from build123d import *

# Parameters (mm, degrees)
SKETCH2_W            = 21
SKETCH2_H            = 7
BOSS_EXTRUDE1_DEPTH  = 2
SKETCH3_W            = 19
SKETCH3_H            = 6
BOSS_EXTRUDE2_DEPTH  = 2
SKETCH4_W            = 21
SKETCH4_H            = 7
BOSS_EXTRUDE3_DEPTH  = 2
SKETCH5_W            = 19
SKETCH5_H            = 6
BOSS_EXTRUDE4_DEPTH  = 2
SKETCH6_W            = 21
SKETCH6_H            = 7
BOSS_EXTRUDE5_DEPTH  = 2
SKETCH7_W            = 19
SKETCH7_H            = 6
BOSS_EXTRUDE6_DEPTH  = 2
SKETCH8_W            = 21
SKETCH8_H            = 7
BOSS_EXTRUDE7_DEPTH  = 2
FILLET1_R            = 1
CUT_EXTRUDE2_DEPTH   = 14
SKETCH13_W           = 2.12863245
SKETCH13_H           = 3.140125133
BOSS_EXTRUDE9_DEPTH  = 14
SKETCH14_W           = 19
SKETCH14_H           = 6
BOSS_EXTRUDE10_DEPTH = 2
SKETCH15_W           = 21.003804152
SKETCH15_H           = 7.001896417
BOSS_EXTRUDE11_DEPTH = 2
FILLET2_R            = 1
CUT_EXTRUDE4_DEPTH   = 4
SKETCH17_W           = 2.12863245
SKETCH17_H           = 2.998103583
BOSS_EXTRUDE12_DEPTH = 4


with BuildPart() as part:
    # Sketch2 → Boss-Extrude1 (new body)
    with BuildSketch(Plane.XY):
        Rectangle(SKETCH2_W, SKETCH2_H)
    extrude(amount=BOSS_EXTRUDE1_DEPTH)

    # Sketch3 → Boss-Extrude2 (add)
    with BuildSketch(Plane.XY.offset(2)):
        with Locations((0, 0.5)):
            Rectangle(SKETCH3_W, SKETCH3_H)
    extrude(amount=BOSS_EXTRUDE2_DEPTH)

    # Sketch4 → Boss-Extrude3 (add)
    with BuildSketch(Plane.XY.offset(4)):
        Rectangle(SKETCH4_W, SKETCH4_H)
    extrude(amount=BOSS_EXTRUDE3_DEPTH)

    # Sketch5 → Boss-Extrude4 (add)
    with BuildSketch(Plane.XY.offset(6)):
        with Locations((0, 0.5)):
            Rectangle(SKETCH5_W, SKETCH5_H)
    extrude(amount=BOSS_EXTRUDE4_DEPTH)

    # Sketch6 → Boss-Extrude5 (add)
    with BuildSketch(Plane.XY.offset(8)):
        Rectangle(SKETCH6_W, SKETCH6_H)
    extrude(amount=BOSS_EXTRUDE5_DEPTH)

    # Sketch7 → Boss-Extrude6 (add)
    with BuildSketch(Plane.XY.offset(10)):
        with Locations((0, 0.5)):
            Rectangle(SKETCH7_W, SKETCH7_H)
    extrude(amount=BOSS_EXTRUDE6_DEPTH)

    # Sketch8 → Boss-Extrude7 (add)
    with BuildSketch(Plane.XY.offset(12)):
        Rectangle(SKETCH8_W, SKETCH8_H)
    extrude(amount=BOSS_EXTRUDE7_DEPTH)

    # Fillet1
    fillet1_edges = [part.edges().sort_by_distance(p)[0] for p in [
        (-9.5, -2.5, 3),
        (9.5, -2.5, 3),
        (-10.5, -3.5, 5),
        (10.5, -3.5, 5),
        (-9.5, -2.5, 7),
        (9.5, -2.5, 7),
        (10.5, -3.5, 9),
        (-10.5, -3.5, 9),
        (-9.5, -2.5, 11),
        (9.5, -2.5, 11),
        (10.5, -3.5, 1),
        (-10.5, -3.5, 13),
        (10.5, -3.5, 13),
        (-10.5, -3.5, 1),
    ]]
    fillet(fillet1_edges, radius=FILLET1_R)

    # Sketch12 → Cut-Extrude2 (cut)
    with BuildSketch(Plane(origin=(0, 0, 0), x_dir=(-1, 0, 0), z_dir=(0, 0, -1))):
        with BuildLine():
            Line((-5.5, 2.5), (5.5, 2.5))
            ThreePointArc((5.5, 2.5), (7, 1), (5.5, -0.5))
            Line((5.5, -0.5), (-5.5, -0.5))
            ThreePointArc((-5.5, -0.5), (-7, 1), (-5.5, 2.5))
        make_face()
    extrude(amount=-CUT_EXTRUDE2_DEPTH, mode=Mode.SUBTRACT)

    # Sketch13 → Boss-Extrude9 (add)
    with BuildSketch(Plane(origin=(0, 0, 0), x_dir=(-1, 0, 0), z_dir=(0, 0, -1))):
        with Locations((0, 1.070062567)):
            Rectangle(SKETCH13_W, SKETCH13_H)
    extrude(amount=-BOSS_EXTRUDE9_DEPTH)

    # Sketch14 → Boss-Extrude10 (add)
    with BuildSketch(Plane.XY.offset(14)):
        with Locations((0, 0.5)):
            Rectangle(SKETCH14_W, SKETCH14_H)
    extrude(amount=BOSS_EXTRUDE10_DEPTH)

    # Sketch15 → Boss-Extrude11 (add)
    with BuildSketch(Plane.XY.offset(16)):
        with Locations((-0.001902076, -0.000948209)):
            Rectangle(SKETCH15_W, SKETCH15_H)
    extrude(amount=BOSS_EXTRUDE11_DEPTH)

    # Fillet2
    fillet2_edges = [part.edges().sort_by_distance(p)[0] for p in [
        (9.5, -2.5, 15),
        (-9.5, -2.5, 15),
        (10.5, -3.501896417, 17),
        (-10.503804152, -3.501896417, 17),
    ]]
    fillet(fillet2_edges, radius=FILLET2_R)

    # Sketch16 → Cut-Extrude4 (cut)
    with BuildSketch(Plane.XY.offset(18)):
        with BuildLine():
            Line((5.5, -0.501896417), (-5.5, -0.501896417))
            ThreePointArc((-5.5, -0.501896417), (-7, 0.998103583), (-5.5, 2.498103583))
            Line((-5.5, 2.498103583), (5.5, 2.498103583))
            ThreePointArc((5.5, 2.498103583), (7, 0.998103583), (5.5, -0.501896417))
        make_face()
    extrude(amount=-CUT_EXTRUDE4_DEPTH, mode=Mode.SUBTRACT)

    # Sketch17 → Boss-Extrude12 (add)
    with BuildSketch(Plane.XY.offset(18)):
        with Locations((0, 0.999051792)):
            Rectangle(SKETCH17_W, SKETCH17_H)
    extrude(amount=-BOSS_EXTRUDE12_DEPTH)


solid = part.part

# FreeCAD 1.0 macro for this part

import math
import FreeCAD as App
import Part
import Sketcher
from FreeCAD import Vector
Q = App.Units.Quantity


def edges_at(feature, points):
    """Names of the edges that pass closest to the given points."""
    edges = feature.Shape.Edges
    near = lambda p: min(range(len(edges)), key=lambda i: edges[i].distToShape(Part.Vertex(*p))[0])
    return sorted({f"Edge{near(p) + 1}" for p in points})


def add_polygon(sketch, points):
    """Adds a closed chain of lines whose ends are joined by coincident constraints."""
    first, n = sketch.GeometryCount, len(points)
    for a, b in zip(points, points[1:] + points[:1]):
        sketch.addGeometry(Part.LineSegment(App.Vector(*a, 0), App.Vector(*b, 0)), False)
    for i in range(n):
        sketch.addConstraint(Sketcher.Constraint("Coincident", first + i, 2, first + (i + 1) % n, 1))

doc = App.newDocument("Part")
body = doc.addObject("PartDesign::Body", "Body")

sketch1 = doc.addObject("Sketcher::SketchObject", "Sketch")
body.addObject(sketch1)
sketch1.AttachmentSupport = (doc.XY_Plane, [""])
sketch1.MapMode = "FlatFace"
add_polygon(sketch1, [(-10.5, 3.5), (-10.5, -3.5), (10.5, -3.5), (10.5, 3.5)])
sketch1.addConstraint([
    Sketcher.Constraint("Vertical", 0),
    Sketcher.Constraint("Horizontal", 1),
    Sketcher.Constraint("Vertical", 2),
    Sketcher.Constraint("Horizontal", 3),
    Sketcher.Constraint("Symmetric", 0, 2, 2, 2, -1, 1),
    Sketcher.Constraint("DistanceX", 1, 1, 1, 2, Q("21 mm")),
    Sketcher.Constraint("DistanceY", 0, 2, 0, 1, Q("7 mm")),
])
pad1 = doc.addObject("PartDesign::Pad", "Pad")
body.addObject(pad1)
pad1.Profile = sketch1
pad1.Length = 2

sketch2 = doc.addObject("Sketcher::SketchObject", "Sketch001")
body.addObject(sketch2)
sketch2.AttachmentSupport = (doc.XY_Plane, [""])
sketch2.MapMode = "FlatFace"
sketch2.AttachmentOffset = App.Placement(Vector(0, 0, 2), App.Rotation())
add_polygon(sketch2, [(-9.5, 3.5), (-9.5, -2.5), (9.5, -2.5), (9.5, 3.5)])
sketch2.addConstraint([
    Sketcher.Constraint("Vertical", 0),
    Sketcher.Constraint("Horizontal", 1),
    Sketcher.Constraint("Vertical", 2),
    Sketcher.Constraint("Horizontal", 3),
    Sketcher.Constraint("DistanceX", 1, 1, 1, 2, Q("19 mm")),
    Sketcher.Constraint("DistanceY", 0, 2, 0, 1, Q("6 mm")),
    Sketcher.Constraint("DistanceX", 0, 2, -1, 1, Q("9.5 mm")),
    Sketcher.Constraint("DistanceY", 0, 2, -1, 1, Q("2.5 mm")),
])
pad2 = doc.addObject("PartDesign::Pad", "Pad001")
body.addObject(pad2)
pad2.Profile = sketch2
pad2.Length = 2

sketch3 = doc.addObject("Sketcher::SketchObject", "Sketch002")
body.addObject(sketch3)
sketch3.AttachmentSupport = (doc.XY_Plane, [""])
sketch3.MapMode = "FlatFace"
sketch3.AttachmentOffset = App.Placement(Vector(0, 0, 4), App.Rotation())
add_polygon(sketch3, [(-10.5, 3.5), (-10.5, -3.5), (10.5, -3.5), (10.5, 3.5)])
sketch3.addConstraint([
    Sketcher.Constraint("Vertical", 0),
    Sketcher.Constraint("Horizontal", 1),
    Sketcher.Constraint("Vertical", 2),
    Sketcher.Constraint("Horizontal", 3),
    Sketcher.Constraint("Symmetric", 0, 2, 2, 2, -1, 1),
    Sketcher.Constraint("DistanceX", 1, 1, 1, 2, Q("21 mm")),
    Sketcher.Constraint("DistanceY", 0, 2, 0, 1, Q("7 mm")),
])
pad3 = doc.addObject("PartDesign::Pad", "Pad002")
body.addObject(pad3)
pad3.Profile = sketch3
pad3.Length = 2

sketch4 = doc.addObject("Sketcher::SketchObject", "Sketch003")
body.addObject(sketch4)
sketch4.AttachmentSupport = (doc.XY_Plane, [""])
sketch4.MapMode = "FlatFace"
sketch4.AttachmentOffset = App.Placement(Vector(0, 0, 6), App.Rotation())
add_polygon(sketch4, [(-9.5, 3.5), (-9.5, -2.5), (9.5, -2.5), (9.5, 3.5)])
sketch4.addConstraint([
    Sketcher.Constraint("Vertical", 0),
    Sketcher.Constraint("Horizontal", 1),
    Sketcher.Constraint("Vertical", 2),
    Sketcher.Constraint("Horizontal", 3),
    Sketcher.Constraint("DistanceX", 1, 1, 1, 2, Q("19 mm")),
    Sketcher.Constraint("DistanceY", 0, 2, 0, 1, Q("6 mm")),
    Sketcher.Constraint("DistanceX", 0, 2, -1, 1, Q("9.5 mm")),
    Sketcher.Constraint("DistanceY", 0, 2, -1, 1, Q("2.5 mm")),
])
pad4 = doc.addObject("PartDesign::Pad", "Pad003")
body.addObject(pad4)
pad4.Profile = sketch4
pad4.Length = 2

sketch5 = doc.addObject("Sketcher::SketchObject", "Sketch004")
body.addObject(sketch5)
sketch5.AttachmentSupport = (doc.XY_Plane, [""])
sketch5.MapMode = "FlatFace"
sketch5.AttachmentOffset = App.Placement(Vector(0, 0, 8), App.Rotation())
add_polygon(sketch5, [(-10.5, 3.5), (-10.5, -3.5), (10.5, -3.5), (10.5, 3.5)])
sketch5.addConstraint([
    Sketcher.Constraint("Vertical", 0),
    Sketcher.Constraint("Horizontal", 1),
    Sketcher.Constraint("Vertical", 2),
    Sketcher.Constraint("Horizontal", 3),
    Sketcher.Constraint("Symmetric", 0, 2, 2, 2, -1, 1),
    Sketcher.Constraint("DistanceX", 1, 1, 1, 2, Q("21 mm")),
    Sketcher.Constraint("DistanceY", 0, 2, 0, 1, Q("7 mm")),
])
pad5 = doc.addObject("PartDesign::Pad", "Pad004")
body.addObject(pad5)
pad5.Profile = sketch5
pad5.Length = 2

sketch6 = doc.addObject("Sketcher::SketchObject", "Sketch005")
body.addObject(sketch6)
sketch6.AttachmentSupport = (doc.XY_Plane, [""])
sketch6.MapMode = "FlatFace"
sketch6.AttachmentOffset = App.Placement(Vector(0, 0, 10), App.Rotation())
add_polygon(sketch6, [(-9.5, 3.5), (-9.5, -2.5), (9.5, -2.5), (9.5, 3.5)])
sketch6.addConstraint([
    Sketcher.Constraint("Vertical", 0),
    Sketcher.Constraint("Horizontal", 1),
    Sketcher.Constraint("Vertical", 2),
    Sketcher.Constraint("Horizontal", 3),
    Sketcher.Constraint("DistanceX", 1, 1, 1, 2, Q("19 mm")),
    Sketcher.Constraint("DistanceY", 0, 2, 0, 1, Q("6 mm")),
    Sketcher.Constraint("DistanceX", 0, 2, -1, 1, Q("9.5 mm")),
    Sketcher.Constraint("DistanceY", 0, 2, -1, 1, Q("2.5 mm")),
])
pad6 = doc.addObject("PartDesign::Pad", "Pad005")
body.addObject(pad6)
pad6.Profile = sketch6
pad6.Length = 2

sketch7 = doc.addObject("Sketcher::SketchObject", "Sketch006")
body.addObject(sketch7)
sketch7.AttachmentSupport = (doc.XY_Plane, [""])
sketch7.MapMode = "FlatFace"
sketch7.AttachmentOffset = App.Placement(Vector(0, 0, 12), App.Rotation())
add_polygon(sketch7, [(-10.5, 3.5), (-10.5, -3.5), (10.5, -3.5), (10.5, 3.5)])
sketch7.addConstraint([
    Sketcher.Constraint("Vertical", 0),
    Sketcher.Constraint("Horizontal", 1),
    Sketcher.Constraint("Vertical", 2),
    Sketcher.Constraint("Horizontal", 3),
    Sketcher.Constraint("Symmetric", 0, 2, 2, 2, -1, 1),
    Sketcher.Constraint("DistanceX", 1, 1, 1, 2, Q("21 mm")),
    Sketcher.Constraint("DistanceY", 0, 2, 0, 1, Q("7 mm")),
])
pad7 = doc.addObject("PartDesign::Pad", "Pad006")
body.addObject(pad7)
pad7.Profile = sketch7
pad7.Length = 2
doc.recompute()

fillet = doc.addObject("PartDesign::Fillet", "Fillet")
body.addObject(fillet)
fillet.Base = (pad7, edges_at(pad7, [
    (-9.5, -2.5, 3),
    (9.5, -2.5, 3),
    (-10.5, -3.5, 5),
    (10.5, -3.5, 5),
    (-9.5, -2.5, 7),
    (9.5, -2.5, 7),
    (10.5, -3.5, 9),
    (-10.5, -3.5, 9),
    (-9.5, -2.5, 11),
    (9.5, -2.5, 11),
    (10.5, -3.5, 1),
    (-10.5, -3.5, 13),
    (10.5, -3.5, 13),
    (-10.5, -3.5, 1),
]))
fillet.Radius = 1

sketch8 = doc.addObject("Sketcher::SketchObject", "Sketch007")
body.addObject(sketch8)
sketch8.AttachmentSupport = (doc.XY_Plane, [""])
sketch8.MapMode = "FlatFace"
sketch8.addGeometry([
    Part.LineSegment(Vector(-5.5, 2.5, 0), Vector(5.5, 2.5, 0)),
    Part.ArcOfCircle(Part.Circle(Vector(5.5, 1, 0), Vector(0, 0, 1), 1.5), math.radians(-90), math.radians(90)),
    Part.LineSegment(Vector(5.5, -0.5, 0), Vector(-5.5, -0.5, 0)),
    Part.ArcOfCircle(Part.Circle(Vector(-5.5, 1, 0), Vector(0, 0, 1), 1.5), math.radians(90), math.radians(270)),
], False)
sketch8.addConstraint([
    Sketcher.Constraint("Tangent", 0, 2, 1, 2),
    Sketcher.Constraint("Tangent", 1, 1, 2, 1),
    Sketcher.Constraint("Tangent", 2, 2, 3, 2),
    Sketcher.Constraint("Tangent", 3, 1, 0, 1),
    Sketcher.Constraint("Horizontal", 0),
    Sketcher.Constraint("Horizontal", 2),
    Sketcher.Constraint("Radius", 1, Q("1.5 mm")),
    Sketcher.Constraint("DistanceX", 0, 1, 0, 2, Q("11 mm")),
    Sketcher.Constraint("DistanceY", -1, 1, 1, 3, Q("1 mm")),
    Sketcher.Constraint("DistanceX", -1, 1, 1, 3, Q("5.5 mm")),
])
pocket1 = doc.addObject("PartDesign::Pocket", "Pocket")
body.addObject(pocket1)
pocket1.Profile = sketch8
pocket1.Length = 14
pocket1.Reversed = True

sketch9 = doc.addObject("Sketcher::SketchObject", "Sketch008")
body.addObject(sketch9)
sketch9.AttachmentSupport = (doc.XY_Plane, [""])
sketch9.MapMode = "FlatFace"
add_polygon(sketch9, [(1.064316, 2.640125), (1.064316, -0.5), (-1.064316, -0.5), (-1.064316, 2.640125)])
sketch9.addConstraint([
    Sketcher.Constraint("Vertical", 0),
    Sketcher.Constraint("Horizontal", 1),
    Sketcher.Constraint("Vertical", 2),
    Sketcher.Constraint("Horizontal", 3),
    Sketcher.Constraint("DistanceY", 0, 2, -1, 1, Q("0.5 mm")),
    Sketcher.Constraint("DistanceX", 1, 2, 1, 1, Q("2.128632 mm")),
    Sketcher.Constraint("DistanceY", 0, 2, 0, 1, Q("3.140125 mm")),
    Sketcher.Constraint("DistanceX", -1, 1, 0, 2, Q("1.064316 mm")),
])
pad8 = doc.addObject("PartDesign::Pad", "Pad007")
body.addObject(pad8)
pad8.Profile = sketch9
pad8.Length = 14

sketch10 = doc.addObject("Sketcher::SketchObject", "Sketch009")
body.addObject(sketch10)
sketch10.AttachmentSupport = (doc.XY_Plane, [""])
sketch10.MapMode = "FlatFace"
sketch10.AttachmentOffset = App.Placement(Vector(0, 0, 14), App.Rotation())
add_polygon(sketch10, [(-9.5, 3.5), (-9.5, -2.5), (9.5, -2.5), (9.5, 3.5)])
sketch10.addConstraint([
    Sketcher.Constraint("Vertical", 0),
    Sketcher.Constraint("Horizontal", 1),
    Sketcher.Constraint("Vertical", 2),
    Sketcher.Constraint("Horizontal", 3),
    Sketcher.Constraint("DistanceX", 1, 1, 1, 2, Q("19 mm")),
    Sketcher.Constraint("DistanceY", 0, 2, 0, 1, Q("6 mm")),
    Sketcher.Constraint("DistanceX", 0, 2, -1, 1, Q("9.5 mm")),
    Sketcher.Constraint("DistanceY", 0, 2, -1, 1, Q("2.5 mm")),
])
pad9 = doc.addObject("PartDesign::Pad", "Pad008")
body.addObject(pad9)
pad9.Profile = sketch10
pad9.Length = 2

sketch11 = doc.addObject("Sketcher::SketchObject", "Sketch010")
body.addObject(sketch11)
sketch11.AttachmentSupport = (doc.XY_Plane, [""])
sketch11.MapMode = "FlatFace"
sketch11.AttachmentOffset = App.Placement(Vector(0, 0, 16), App.Rotation())
add_polygon(sketch11, [(-10.503804, 3.5), (-10.503804, -3.501896), (10.5, -3.501896), (10.5, 3.5)])
sketch11.addConstraint([
    Sketcher.Constraint("Vertical", 0),
    Sketcher.Constraint("Horizontal", 1),
    Sketcher.Constraint("Vertical", 2),
    Sketcher.Constraint("Horizontal", 3),
    Sketcher.Constraint("DistanceX", -1, 1, 1, 2, Q("10.5 mm")),
    Sketcher.Constraint("DistanceY", -1, 1, 2, 2, Q("3.5 mm")),
    Sketcher.Constraint("DistanceX", 1, 1, 1, 2, Q("21.003804 mm")),
    Sketcher.Constraint("DistanceY", 0, 2, 0, 1, Q("7.001896 mm")),
])
pad10 = doc.addObject("PartDesign::Pad", "Pad009")
body.addObject(pad10)
pad10.Profile = sketch11
pad10.Length = 2
doc.recompute()

fillet2 = doc.addObject("PartDesign::Fillet", "Fillet001")
body.addObject(fillet2)
fillet2.Base = (pad10, edges_at(pad10, [
    (9.5, -2.5, 15),
    (-9.5, -2.5, 15),
    (10.5, -3.502, 17),
    (-10.504, -3.502, 17),
]))
fillet2.Radius = 1

sketch12 = doc.addObject("Sketcher::SketchObject", "Sketch011")
body.addObject(sketch12)
sketch12.AttachmentSupport = (doc.XY_Plane, [""])
sketch12.MapMode = "FlatFace"
sketch12.AttachmentOffset = App.Placement(Vector(0, 0, 18), App.Rotation())
sketch12.addGeometry([
    Part.LineSegment(Vector(-5.5, -0.501896, 0), Vector(5.5, -0.501896, 0)),
    Part.ArcOfCircle(Part.Circle(Vector(5.5, 0.998104, 0), Vector(0, 0, 1), 1.5), math.radians(-90), math.radians(90)),
    Part.LineSegment(Vector(5.5, 2.498104, 0), Vector(-5.5, 2.498104, 0)),
    Part.ArcOfCircle(Part.Circle(Vector(-5.5, 0.998104, 0), Vector(0, 0, 1), 1.5), math.radians(90), math.radians(270)),
], False)
sketch12.addConstraint([
    Sketcher.Constraint("Tangent", 0, 2, 1, 1),
    Sketcher.Constraint("Tangent", 1, 2, 2, 1),
    Sketcher.Constraint("Tangent", 2, 2, 3, 1),
    Sketcher.Constraint("Tangent", 3, 2, 0, 1),
    Sketcher.Constraint("Horizontal", 0),
    Sketcher.Constraint("Horizontal", 2),
    Sketcher.Constraint("Radius", 1, Q("1.5 mm")),
    Sketcher.Constraint("DistanceX", 0, 1, 0, 2, Q("11 mm")),
    Sketcher.Constraint("DistanceX", -1, 1, 1, 3, Q("5.5 mm")),
    Sketcher.Constraint("DistanceY", -1, 1, 1, 3, Q("0.998104 mm")),
])
pocket2 = doc.addObject("PartDesign::Pocket", "Pocket001")
body.addObject(pocket2)
pocket2.Profile = sketch12
pocket2.Length = 4

sketch13 = doc.addObject("Sketcher::SketchObject", "Sketch012")
body.addObject(sketch13)
sketch13.AttachmentSupport = (doc.XY_Plane, [""])
sketch13.MapMode = "FlatFace"
sketch13.AttachmentOffset = App.Placement(Vector(0, 0, 18), App.Rotation())
add_polygon(sketch13, [(-1.064316, 2.498104), (-1.064316, -0.5), (1.064316, -0.5), (1.064316, 2.498104)])
sketch13.addConstraint([
    Sketcher.Constraint("Vertical", 0),
    Sketcher.Constraint("Horizontal", 1),
    Sketcher.Constraint("Vertical", 2),
    Sketcher.Constraint("Horizontal", 3),
    Sketcher.Constraint("DistanceY", 0, 2, -1, 1, Q("0.5 mm")),
    Sketcher.Constraint("DistanceX", 1, 1, 1, 2, Q("2.128632 mm")),
    Sketcher.Constraint("DistanceY", 0, 2, 0, 1, Q("2.998104 mm")),
    Sketcher.Constraint("DistanceX", 0, 2, -1, 1, Q("1.064316 mm")),
])
pad11 = doc.addObject("PartDesign::Pad", "Pad010")
body.addObject(pad11)
pad11.Profile = sketch13
pad11.Length = 4
pad11.Reversed = True

doc.recompute()
